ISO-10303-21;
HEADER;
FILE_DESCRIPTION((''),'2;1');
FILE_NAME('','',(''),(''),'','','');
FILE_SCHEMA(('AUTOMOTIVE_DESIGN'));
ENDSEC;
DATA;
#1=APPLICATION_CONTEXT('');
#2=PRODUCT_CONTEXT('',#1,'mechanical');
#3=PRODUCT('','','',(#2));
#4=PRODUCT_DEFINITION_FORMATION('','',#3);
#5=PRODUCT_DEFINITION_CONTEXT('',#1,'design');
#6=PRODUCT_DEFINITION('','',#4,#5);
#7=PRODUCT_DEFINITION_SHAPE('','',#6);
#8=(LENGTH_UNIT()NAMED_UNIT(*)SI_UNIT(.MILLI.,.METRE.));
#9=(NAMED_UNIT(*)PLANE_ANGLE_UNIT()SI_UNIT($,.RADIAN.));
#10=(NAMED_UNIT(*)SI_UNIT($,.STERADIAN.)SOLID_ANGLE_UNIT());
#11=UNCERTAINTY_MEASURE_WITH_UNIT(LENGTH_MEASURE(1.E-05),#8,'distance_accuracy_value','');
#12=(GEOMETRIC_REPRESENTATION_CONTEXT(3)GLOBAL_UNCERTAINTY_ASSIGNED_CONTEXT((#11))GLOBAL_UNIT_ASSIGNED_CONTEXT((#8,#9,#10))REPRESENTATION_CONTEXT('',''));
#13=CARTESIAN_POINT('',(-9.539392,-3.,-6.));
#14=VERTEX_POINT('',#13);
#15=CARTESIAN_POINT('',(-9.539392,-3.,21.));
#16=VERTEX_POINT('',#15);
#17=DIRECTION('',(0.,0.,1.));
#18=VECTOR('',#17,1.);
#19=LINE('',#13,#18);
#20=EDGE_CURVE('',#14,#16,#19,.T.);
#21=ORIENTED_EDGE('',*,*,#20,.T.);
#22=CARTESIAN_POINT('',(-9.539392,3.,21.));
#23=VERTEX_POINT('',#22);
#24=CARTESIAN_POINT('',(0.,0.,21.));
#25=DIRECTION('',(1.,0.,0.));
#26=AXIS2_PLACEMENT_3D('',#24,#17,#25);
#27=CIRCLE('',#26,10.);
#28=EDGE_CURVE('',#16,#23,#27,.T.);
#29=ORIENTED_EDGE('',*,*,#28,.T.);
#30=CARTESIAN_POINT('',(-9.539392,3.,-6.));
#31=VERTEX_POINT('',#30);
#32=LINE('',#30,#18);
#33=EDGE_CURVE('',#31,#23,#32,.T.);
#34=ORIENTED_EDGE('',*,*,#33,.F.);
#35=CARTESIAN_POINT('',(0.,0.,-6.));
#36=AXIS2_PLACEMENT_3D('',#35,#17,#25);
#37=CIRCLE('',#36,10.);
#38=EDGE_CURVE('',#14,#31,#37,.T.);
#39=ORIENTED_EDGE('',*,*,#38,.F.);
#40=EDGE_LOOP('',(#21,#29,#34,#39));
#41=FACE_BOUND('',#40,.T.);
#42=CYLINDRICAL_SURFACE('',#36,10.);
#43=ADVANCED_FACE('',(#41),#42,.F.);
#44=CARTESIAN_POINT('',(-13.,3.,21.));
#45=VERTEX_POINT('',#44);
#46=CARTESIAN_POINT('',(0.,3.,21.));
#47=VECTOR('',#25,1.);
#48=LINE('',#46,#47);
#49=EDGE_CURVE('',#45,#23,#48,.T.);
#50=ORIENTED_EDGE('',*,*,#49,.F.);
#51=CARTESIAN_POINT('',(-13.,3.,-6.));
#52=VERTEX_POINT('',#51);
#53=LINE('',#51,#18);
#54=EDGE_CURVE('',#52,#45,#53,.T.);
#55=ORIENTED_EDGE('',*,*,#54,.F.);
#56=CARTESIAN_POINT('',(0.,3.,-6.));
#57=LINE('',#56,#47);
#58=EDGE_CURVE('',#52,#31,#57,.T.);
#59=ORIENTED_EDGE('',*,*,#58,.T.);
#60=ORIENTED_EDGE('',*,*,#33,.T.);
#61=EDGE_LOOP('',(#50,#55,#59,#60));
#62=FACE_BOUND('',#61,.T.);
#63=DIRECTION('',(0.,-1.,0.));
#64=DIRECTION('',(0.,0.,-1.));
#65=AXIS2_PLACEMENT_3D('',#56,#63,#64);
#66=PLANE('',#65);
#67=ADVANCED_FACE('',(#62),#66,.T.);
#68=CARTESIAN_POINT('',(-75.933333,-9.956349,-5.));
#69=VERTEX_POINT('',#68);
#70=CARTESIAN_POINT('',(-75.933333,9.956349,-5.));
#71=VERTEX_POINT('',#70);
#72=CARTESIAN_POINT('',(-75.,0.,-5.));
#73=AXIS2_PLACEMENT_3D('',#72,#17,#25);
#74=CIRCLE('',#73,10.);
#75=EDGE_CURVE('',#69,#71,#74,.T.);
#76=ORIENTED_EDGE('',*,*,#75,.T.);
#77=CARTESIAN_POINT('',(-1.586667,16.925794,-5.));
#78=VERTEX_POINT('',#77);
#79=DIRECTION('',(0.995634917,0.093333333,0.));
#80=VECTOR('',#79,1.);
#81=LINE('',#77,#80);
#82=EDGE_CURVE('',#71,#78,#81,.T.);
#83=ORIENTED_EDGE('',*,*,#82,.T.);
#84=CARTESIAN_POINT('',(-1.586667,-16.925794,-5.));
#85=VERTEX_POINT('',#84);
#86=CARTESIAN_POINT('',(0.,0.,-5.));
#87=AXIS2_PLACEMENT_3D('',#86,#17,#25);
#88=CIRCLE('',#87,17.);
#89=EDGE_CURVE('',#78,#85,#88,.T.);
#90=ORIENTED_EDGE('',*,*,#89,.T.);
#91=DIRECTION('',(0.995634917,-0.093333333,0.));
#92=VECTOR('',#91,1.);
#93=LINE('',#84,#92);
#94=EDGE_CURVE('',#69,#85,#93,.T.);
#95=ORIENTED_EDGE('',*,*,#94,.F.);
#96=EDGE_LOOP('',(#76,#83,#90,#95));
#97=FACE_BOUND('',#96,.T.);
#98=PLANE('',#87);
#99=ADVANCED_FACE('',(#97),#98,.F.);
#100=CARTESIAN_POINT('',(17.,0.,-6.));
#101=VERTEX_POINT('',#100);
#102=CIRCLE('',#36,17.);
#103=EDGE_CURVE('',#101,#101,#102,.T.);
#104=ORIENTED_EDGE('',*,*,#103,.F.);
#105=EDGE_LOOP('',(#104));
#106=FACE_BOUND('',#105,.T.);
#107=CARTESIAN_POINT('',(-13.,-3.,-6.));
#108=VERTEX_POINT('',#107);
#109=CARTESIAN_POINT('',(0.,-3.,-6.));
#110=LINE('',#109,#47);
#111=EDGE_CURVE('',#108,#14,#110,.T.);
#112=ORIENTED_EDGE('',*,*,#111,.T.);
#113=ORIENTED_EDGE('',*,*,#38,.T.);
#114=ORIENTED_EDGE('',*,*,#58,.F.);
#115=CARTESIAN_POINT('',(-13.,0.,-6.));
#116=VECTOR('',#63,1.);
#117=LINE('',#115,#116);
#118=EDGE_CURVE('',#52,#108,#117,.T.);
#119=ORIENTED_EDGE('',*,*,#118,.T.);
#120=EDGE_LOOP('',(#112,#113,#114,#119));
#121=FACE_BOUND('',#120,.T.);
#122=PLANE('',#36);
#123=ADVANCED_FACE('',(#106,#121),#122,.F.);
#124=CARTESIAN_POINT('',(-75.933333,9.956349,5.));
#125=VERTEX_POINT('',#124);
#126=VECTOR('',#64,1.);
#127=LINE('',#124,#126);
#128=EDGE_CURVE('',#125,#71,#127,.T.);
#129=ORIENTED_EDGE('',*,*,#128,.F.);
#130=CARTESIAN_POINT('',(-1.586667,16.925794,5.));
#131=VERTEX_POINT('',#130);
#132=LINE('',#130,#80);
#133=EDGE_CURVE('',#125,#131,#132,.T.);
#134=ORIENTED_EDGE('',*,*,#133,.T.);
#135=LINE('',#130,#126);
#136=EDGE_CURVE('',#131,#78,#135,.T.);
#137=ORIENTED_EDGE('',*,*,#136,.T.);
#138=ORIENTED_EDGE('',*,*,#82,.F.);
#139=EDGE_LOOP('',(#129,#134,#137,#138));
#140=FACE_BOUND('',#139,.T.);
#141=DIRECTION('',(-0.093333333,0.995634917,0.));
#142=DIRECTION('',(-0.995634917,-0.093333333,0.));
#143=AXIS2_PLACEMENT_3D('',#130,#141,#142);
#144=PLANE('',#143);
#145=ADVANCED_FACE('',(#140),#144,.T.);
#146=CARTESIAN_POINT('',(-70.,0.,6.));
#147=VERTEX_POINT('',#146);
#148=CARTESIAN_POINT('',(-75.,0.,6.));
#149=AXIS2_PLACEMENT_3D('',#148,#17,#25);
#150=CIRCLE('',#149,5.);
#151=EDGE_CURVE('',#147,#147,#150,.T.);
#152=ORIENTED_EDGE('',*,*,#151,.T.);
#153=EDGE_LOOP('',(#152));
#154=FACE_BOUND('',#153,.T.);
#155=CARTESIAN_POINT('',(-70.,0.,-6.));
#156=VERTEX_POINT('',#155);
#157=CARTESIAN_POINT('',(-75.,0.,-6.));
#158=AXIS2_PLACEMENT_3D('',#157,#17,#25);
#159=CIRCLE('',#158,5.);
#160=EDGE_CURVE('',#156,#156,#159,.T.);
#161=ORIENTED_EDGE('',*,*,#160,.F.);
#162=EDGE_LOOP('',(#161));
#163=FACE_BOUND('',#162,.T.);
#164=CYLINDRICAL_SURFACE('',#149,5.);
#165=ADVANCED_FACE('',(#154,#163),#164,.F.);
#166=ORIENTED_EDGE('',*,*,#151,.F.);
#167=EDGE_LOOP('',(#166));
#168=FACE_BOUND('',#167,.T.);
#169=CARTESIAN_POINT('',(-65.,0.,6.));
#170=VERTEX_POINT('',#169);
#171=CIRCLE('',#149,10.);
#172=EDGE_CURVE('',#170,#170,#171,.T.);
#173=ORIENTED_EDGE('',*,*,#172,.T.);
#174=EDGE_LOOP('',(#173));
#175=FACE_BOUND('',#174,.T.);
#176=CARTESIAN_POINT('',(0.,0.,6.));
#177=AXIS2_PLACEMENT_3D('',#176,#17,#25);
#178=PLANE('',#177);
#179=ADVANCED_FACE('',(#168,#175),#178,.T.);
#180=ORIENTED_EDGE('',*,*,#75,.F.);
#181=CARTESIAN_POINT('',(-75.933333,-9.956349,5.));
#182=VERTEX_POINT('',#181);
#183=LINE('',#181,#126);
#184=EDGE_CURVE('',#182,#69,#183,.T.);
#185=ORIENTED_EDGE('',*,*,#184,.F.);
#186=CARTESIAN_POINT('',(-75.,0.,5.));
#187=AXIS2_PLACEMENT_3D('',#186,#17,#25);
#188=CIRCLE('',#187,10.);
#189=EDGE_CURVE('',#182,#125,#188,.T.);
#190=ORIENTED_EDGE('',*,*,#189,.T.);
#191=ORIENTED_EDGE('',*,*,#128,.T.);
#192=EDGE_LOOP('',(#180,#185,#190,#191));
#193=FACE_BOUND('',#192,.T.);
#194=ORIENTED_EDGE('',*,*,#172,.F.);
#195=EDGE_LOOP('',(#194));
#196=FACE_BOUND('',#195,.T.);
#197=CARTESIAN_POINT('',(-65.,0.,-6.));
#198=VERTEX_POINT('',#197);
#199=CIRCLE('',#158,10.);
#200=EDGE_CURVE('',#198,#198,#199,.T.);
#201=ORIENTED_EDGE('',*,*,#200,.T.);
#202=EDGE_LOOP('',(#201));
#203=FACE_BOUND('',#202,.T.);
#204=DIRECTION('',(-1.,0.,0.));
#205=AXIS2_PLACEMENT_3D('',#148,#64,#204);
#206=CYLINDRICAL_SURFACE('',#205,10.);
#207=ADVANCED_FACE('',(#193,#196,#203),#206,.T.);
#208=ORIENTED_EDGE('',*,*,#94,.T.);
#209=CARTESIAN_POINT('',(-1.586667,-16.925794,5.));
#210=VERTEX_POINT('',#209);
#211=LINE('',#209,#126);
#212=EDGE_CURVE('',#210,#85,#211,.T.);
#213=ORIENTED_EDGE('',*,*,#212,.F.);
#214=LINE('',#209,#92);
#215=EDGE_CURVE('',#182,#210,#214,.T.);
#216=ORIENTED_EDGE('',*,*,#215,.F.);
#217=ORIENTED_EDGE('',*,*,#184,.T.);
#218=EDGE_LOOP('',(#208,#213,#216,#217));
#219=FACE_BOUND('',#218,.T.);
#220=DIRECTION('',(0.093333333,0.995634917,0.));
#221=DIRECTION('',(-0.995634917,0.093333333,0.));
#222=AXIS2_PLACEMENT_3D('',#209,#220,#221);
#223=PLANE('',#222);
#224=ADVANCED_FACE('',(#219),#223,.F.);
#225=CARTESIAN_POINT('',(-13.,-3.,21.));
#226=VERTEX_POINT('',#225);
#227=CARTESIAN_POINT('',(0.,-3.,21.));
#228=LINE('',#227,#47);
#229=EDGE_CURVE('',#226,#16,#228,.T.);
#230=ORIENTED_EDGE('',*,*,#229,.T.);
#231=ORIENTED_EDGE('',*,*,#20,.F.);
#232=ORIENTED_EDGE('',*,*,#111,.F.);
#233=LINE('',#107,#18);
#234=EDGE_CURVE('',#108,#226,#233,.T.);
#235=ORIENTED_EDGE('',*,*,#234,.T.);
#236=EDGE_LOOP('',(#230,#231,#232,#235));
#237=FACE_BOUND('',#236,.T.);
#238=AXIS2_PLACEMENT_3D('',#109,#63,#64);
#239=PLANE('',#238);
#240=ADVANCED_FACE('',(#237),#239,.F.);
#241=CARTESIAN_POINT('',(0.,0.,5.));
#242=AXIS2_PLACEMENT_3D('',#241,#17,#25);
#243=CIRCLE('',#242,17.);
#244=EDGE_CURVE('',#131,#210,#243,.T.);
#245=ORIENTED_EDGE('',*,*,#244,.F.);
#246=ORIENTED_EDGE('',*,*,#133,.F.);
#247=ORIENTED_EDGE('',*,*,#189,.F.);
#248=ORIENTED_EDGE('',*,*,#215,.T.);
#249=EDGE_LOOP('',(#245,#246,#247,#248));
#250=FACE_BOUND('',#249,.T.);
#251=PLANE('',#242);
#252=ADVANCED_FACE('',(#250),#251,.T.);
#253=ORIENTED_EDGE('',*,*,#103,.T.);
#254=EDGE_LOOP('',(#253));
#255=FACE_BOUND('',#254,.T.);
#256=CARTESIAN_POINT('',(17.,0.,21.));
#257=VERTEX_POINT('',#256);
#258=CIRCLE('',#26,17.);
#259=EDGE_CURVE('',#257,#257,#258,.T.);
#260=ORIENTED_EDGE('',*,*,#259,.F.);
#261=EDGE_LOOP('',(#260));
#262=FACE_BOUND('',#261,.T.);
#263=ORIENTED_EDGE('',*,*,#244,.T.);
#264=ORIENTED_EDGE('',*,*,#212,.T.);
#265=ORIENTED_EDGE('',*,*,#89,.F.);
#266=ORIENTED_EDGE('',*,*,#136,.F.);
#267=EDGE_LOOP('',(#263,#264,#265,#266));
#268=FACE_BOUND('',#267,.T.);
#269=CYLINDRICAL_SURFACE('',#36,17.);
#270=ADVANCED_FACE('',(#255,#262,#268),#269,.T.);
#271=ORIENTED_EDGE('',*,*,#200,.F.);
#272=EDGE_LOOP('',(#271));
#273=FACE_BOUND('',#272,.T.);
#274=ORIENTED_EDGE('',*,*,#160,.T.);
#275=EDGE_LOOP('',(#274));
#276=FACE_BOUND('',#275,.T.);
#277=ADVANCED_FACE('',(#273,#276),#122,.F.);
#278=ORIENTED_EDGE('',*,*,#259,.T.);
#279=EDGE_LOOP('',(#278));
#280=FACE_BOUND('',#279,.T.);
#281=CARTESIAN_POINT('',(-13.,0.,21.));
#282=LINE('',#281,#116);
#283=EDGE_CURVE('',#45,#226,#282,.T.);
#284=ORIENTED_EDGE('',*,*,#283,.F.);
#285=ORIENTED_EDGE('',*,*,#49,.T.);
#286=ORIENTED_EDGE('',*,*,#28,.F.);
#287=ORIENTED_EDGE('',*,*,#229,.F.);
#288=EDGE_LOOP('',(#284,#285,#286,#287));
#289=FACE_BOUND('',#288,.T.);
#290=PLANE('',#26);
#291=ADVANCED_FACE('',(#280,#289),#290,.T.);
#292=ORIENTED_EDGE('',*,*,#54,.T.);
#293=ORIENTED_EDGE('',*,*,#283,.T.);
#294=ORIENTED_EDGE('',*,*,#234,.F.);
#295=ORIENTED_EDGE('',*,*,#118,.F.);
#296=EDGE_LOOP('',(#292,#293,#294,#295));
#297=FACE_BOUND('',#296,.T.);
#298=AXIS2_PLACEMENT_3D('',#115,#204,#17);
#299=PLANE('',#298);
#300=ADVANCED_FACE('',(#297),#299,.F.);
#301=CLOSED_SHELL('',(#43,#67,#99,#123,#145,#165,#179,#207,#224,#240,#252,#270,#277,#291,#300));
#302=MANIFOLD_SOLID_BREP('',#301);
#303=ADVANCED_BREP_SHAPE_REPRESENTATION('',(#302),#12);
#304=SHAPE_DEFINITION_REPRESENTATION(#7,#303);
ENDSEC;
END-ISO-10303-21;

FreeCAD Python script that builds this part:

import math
import FreeCAD as App
import Part
import Sketcher

V = App.Vector

doc = App.newDocument("Part")
body = doc.addObject("PartDesign::Body", "Body")

sketch1 = doc.addObject("Sketcher::SketchObject", "Sketch")
body.addObject(sketch1)
sketch1.AttachmentSupport = (doc.XY_Plane, [""])
sketch1.MapMode = "FlatFace"
sketch1.addGeometry(Part.Circle(V(-75, 0, 0), V(0, 0, 1), 10), False)
sketch1.addConstraint(Sketcher.Constraint("PointOnObject", 0, 3, -1))
sketch1.addConstraint(Sketcher.Constraint("Diameter", 0, 20.0))
sketch1.addConstraint(Sketcher.Constraint("DistanceX", 0, 3, -1, 1, 75.0))
pad1 = doc.addObject("PartDesign::Pad", "Pad")
body.addObject(pad1)
pad1.Profile = sketch1
pad1.Length = 12
pad1.Midplane = True
body2 = doc.addObject("PartDesign::Body", "Body001")

sketch2 = doc.addObject("Sketcher::SketchObject", "Sketch001")
body2.addObject(sketch2)
sketch2.AttachmentSupport = (doc.getObject("XY_Plane001"), [""])
sketch2.MapMode = "FlatFace"
sketch2.addGeometry(Part.Circle(V(0, 0, 0), V(0, 0, 1), 17), False)
sketch2.addGeometry(Part.LineSegment(V(-13, -3, 0), V(-13, 3, 0)), False)
sketch2.addGeometry(Part.LineSegment(V(-13, 3, 0), V(-9.539392, 3, 0)), False)
sketch2.addGeometry(Part.ArcOfCircle(Part.Circle(V(0, 0, 0), V(0, 0, 1), 10), math.radians(-162.542397), math.radians(162.542397)), False)
sketch2.addGeometry(Part.LineSegment(V(-9.539392, -3, 0), V(-13, -3, 0)), False)
sketch2.addConstraint(Sketcher.Constraint("Coincident", 1, 2, 2, 1))
sketch2.addConstraint(Sketcher.Constraint("Coincident", 2, 2, 3, 2))
sketch2.addConstraint(Sketcher.Constraint("Coincident", 3, 1, 4, 1))
sketch2.addConstraint(Sketcher.Constraint("Coincident", 4, 2, 1, 1))
sketch2.addConstraint(Sketcher.Constraint("Vertical", 1))
sketch2.addConstraint(Sketcher.Constraint("Horizontal", 2))
sketch2.addConstraint(Sketcher.Constraint("Horizontal", 4))
sketch2.addConstraint(Sketcher.Constraint("Coincident", 0, 3, -1, 1))
sketch2.addConstraint(Sketcher.Constraint("Coincident", 3, 3, -1, 1))
sketch2.addConstraint(Sketcher.Constraint("Vertical", 2, 2, 3, 1))
sketch2.addConstraint(Sketcher.Constraint("Diameter", 0, 34.0))
sketch2.addConstraint(Sketcher.Constraint("Radius", 3, 10.0))
sketch2.addConstraint(Sketcher.Constraint("DistanceY", 1, 1, 1, 2, 6.0))
sketch2.addConstraint(Sketcher.Constraint("DistanceX", 1, 2, -1, 1, 13.0))
pad2 = doc.addObject("PartDesign::Pad", "Pad001")
body2.addObject(pad2)
pad2.Profile = sketch2
pad2.Type = "TwoLengths"
pad2.Length = 21
pad2.Length2 = 6
body.AllowCompound = True
doc.recompute()

boolean = doc.addObject("PartDesign::Boolean", "Boolean")
body.addObject(boolean)
boolean.Type = "Fuse"
boolean.addObjects([body2])

sketch3 = doc.addObject("Sketcher::SketchObject", "Sketch002")
body.addObject(sketch3)
sketch3.AttachmentSupport = (doc.XY_Plane, [""])
sketch3.MapMode = "FlatFace"
sketch3.addGeometry(Part.ArcOfCircle(Part.Circle(V(-75, 0, 0), V(0, 0, 1), 10), math.radians(0), math.radians(95.355401)), False)
sketch3.addGeometry(Part.ArcOfCircle(Part.Circle(V(-75, 0, 0), V(0, 0, 1), 10), math.radians(-95.355401), math.radians(0)), False)
sketch3.addGeometry(Part.LineSegment(V(-75.933333, -9.956349, 0), V(-1.586667, -16.925794, 0)), False)
sketch3.addGeometry(Part.ArcOfCircle(Part.Circle(V(0, 0, 0), V(0, 0, 1), 17), math.radians(180), math.radians(264.644599)), False)
sketch3.addGeometry(Part.ArcOfCircle(Part.Circle(V(0, 0, 0), V(0, 0, 1), 17), math.radians(95.355401), math.radians(180)), False)
sketch3.addGeometry(Part.LineSegment(V(-1.586667, 16.925794, 0), V(-75.933333, 9.956349, 0)), False)
sketch3.addConstraint(Sketcher.Constraint("Tangent", 0, 1, 1, 2))
sketch3.addConstraint(Sketcher.Constraint("Tangent", 1, 1, 2, 1))
sketch3.addConstraint(Sketcher.Constraint("Tangent", 2, 2, 3, 2))
sketch3.addConstraint(Sketcher.Constraint("Tangent", 3, 1, 4, 2))
sketch3.addConstraint(Sketcher.Constraint("Tangent", 4, 1, 5, 1))
sketch3.addConstraint(Sketcher.Constraint("Tangent", 5, 2, 0, 2))
sketch3.addConstraint(Sketcher.Constraint("Coincident", 3, 3, -1, 1))
sketch3.addConstraint(Sketcher.Constraint("Equal", 0, 1))
sketch3.addConstraint(Sketcher.Constraint("Equal", 3, 4))
sketch3.addConstraint(Sketcher.Constraint("PointOnObject", 0, 3, -1))
sketch3.addConstraint(Sketcher.Constraint("PointOnObject", 0, 1, -1))
sketch3.addConstraint(Sketcher.Constraint("PointOnObject", 3, 1, -1))
sketch3.addConstraint(Sketcher.Constraint("Radius", 0, 10.0))
sketch3.addConstraint(Sketcher.Constraint("Radius", 3, 17.0))
sketch3.addConstraint(Sketcher.Constraint("DistanceX", 0, 3, -1, 1, 75.0))
pad3 = doc.addObject("PartDesign::Pad", "Pad002")
body.addObject(pad3)
pad3.Profile = sketch3
pad3.Length = 10
pad3.Midplane = True

sketch4 = doc.addObject("Sketcher::SketchObject", "Sketch003")
body.addObject(sketch4)
sketch4.AttachmentSupport = (doc.XY_Plane, [""])
sketch4.MapMode = "FlatFace"
sketch4.AttachmentOffset = App.Placement(V(0, 0, 6), App.Rotation())
sketch4.addGeometry(Part.Circle(V(-75, 0, 0), V(0, 0, 1), 5), False)
sketch4.addConstraint(Sketcher.Constraint("PointOnObject", 0, 3, -1))
sketch4.addConstraint(Sketcher.Constraint("Diameter", 0, 10.0))
sketch4.addConstraint(Sketcher.Constraint("DistanceX", 0, 3, -1, 1, 75.0))
doc.recompute()
hole = doc.addObject("PartDesign::Hole", "Hole")
body.addObject(hole)
hole.Profile = sketch4
hole.ThreadType = "None"
hole.Diameter = 10
hole.DepthType = "ThroughAll"

doc.recompute()
